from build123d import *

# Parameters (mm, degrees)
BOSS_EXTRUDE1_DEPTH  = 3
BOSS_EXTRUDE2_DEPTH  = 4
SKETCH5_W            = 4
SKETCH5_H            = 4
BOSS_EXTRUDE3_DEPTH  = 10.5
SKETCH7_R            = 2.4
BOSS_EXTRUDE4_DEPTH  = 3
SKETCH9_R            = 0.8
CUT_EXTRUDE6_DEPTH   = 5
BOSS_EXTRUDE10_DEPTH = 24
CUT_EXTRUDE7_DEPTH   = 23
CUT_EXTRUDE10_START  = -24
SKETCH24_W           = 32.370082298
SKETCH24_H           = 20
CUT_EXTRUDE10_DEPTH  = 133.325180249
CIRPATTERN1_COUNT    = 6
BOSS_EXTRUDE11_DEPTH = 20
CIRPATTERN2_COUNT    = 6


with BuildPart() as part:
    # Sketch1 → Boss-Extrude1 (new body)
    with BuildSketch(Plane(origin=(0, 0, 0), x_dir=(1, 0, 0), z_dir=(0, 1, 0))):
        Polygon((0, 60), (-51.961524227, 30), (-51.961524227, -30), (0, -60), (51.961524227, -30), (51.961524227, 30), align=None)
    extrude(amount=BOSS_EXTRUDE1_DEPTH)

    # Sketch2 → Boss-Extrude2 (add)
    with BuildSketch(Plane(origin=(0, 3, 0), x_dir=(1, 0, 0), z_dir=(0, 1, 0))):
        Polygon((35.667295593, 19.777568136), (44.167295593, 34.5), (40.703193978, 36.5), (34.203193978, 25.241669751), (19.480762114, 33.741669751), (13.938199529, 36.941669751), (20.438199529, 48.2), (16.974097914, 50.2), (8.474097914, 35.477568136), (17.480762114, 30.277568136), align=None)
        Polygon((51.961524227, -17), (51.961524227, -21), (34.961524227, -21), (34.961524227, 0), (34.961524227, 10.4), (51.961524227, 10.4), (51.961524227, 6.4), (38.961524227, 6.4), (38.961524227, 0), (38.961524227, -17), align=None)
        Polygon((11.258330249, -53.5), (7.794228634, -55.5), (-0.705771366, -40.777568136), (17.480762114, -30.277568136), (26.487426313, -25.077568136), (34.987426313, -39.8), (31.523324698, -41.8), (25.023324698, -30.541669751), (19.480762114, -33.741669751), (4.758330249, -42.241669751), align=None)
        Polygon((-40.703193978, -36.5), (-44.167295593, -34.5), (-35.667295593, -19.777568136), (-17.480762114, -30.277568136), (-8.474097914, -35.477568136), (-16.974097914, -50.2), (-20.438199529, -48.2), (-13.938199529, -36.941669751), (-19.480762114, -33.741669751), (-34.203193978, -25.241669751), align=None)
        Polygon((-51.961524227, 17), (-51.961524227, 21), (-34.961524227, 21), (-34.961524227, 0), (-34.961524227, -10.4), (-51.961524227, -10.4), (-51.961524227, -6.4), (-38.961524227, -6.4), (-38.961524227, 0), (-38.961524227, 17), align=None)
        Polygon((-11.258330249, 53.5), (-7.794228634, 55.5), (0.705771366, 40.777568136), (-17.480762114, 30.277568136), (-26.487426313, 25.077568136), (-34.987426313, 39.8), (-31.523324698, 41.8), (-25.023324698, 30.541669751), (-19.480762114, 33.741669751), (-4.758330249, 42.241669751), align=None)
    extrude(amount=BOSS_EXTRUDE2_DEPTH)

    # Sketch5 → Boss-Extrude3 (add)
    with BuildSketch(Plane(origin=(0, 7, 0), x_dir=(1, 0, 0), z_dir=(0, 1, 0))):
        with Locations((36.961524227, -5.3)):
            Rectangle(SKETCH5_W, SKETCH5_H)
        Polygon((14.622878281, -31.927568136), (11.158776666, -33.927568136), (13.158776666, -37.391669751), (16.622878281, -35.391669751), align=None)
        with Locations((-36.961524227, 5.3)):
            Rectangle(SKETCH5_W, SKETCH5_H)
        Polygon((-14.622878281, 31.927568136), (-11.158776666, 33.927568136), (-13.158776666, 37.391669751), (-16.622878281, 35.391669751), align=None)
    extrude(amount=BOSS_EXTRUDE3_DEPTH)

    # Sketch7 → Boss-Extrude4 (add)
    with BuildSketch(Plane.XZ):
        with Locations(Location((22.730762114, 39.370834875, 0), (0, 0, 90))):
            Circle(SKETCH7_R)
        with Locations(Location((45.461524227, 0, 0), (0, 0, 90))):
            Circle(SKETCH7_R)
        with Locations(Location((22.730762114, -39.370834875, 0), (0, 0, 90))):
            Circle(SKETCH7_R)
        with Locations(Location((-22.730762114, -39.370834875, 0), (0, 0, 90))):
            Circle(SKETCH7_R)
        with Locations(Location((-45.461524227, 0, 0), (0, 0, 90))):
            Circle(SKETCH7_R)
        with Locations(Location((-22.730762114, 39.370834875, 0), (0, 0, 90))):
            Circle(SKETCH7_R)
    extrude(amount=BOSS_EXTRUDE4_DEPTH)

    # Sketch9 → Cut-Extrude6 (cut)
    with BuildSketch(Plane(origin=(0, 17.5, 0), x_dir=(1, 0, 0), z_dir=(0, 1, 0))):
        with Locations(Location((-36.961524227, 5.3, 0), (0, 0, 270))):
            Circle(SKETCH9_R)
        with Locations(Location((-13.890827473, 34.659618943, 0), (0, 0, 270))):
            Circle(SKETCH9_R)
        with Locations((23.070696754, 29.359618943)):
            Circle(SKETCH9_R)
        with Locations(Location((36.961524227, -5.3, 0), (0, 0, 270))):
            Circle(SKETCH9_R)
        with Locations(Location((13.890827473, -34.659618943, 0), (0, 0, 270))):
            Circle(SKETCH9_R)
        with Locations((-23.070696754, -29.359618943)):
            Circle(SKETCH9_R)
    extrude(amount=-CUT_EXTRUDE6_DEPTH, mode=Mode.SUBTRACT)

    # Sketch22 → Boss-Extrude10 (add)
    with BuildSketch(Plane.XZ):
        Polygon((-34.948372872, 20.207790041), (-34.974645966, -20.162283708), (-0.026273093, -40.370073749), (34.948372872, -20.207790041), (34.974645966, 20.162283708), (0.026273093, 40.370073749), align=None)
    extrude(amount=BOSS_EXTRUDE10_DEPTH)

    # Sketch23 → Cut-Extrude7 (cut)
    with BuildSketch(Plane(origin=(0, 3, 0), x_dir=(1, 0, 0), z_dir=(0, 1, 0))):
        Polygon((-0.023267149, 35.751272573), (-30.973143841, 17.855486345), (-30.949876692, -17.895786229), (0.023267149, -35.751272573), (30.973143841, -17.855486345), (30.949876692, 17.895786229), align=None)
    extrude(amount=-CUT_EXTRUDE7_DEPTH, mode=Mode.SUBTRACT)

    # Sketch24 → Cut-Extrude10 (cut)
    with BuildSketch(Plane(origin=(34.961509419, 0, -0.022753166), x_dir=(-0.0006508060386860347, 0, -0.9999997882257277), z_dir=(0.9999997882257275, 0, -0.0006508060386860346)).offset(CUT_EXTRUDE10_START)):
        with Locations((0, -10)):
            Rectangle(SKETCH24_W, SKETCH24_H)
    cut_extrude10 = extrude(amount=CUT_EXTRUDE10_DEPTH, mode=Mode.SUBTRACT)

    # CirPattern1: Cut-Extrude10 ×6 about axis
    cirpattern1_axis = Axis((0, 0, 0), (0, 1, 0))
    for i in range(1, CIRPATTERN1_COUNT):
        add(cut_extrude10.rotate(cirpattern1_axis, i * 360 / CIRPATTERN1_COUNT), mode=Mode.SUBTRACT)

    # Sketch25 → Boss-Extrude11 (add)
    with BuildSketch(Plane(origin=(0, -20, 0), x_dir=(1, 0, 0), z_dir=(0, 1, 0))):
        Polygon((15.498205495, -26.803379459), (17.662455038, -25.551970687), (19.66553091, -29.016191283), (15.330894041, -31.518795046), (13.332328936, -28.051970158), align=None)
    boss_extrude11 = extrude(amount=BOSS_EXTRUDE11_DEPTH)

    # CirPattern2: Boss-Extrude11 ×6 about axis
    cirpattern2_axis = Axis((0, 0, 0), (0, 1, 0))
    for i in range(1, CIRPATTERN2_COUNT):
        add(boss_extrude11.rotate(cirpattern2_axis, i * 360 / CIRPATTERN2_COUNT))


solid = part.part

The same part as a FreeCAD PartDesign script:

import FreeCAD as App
import Part
import Sketcher
Q = App.Units.Quantity

doc = App.newDocument("Part")
body = doc.addObject("PartDesign::Body", "Body")

sketch1 = body.newObject("Sketcher::SketchObject", "Sketch")
sketch1.AttachmentSupport = (doc.getObject("XZ_Plane"), [""])
sketch1.MapMode = "FlatFace"
sketch1.addGeometry(Part.LineSegment(App.Vector(0, -60, 0), App.Vector(-52, -30, 0)), False)
sketch1.addGeometry(Part.LineSegment(App.Vector(-52, -30, 0), App.Vector(-52, 30, 0)), False)
sketch1.addGeometry(Part.LineSegment(App.Vector(-52, 30, 0), App.Vector(0, 60, 0)), False)
sketch1.addGeometry(Part.LineSegment(App.Vector(0, 60, 0), App.Vector(52, 30, 0)), False)
sketch1.addGeometry(Part.LineSegment(App.Vector(52, 30, 0), App.Vector(52, -30, 0)), False)
sketch1.addGeometry(Part.LineSegment(App.Vector(52, -30, 0), App.Vector(0, -60, 0)), False)
sketch1.addConstraint(Sketcher.Constraint("Coincident", 0, 2, 1, 1))
sketch1.addConstraint(Sketcher.Constraint("Coincident", 1, 2, 2, 1))
sketch1.addConstraint(Sketcher.Constraint("Coincident", 2, 2, 3, 1))
sketch1.addConstraint(Sketcher.Constraint("Coincident", 3, 2, 4, 1))
sketch1.addConstraint(Sketcher.Constraint("Coincident", 4, 2, 5, 1))
sketch1.addConstraint(Sketcher.Constraint("Coincident", 5, 2, 0, 1))
sketch1.addConstraint(Sketcher.Constraint("Vertical", 1))
sketch1.addConstraint(Sketcher.Constraint("Vertical", 4))
sketch1.addConstraint(Sketcher.Constraint("Symmetric", 0, 2, 3, 2, -1, 1))
sketch1.addConstraint(Sketcher.Constraint("Symmetric", 2, 2, 5, 2, -1, 1))
sketch1.addConstraint(Sketcher.Constraint("PointOnObject", 2, 2, -2))
sketch1.addConstraint(Sketcher.Constraint("Parallel", 2, 5))
sketch1.addConstraint(Sketcher.Constraint("Horizontal", 1, 2, 3, 2))
sketch1.addConstraint(Sketcher.Constraint("DistanceY", 1, 1, 1, 2, 60.0))
sketch1.addConstraint(Sketcher.Constraint("Angle", 0, Q("150 deg")))
sketch1.addConstraint(Sketcher.Constraint("Distance", 0, 60.0))
pad1 = body.newObject("PartDesign::Pad", "Pad")
pad1.Profile = sketch1
pad1.Length = 3
pad1.Reversed = True

sketch2 = body.newObject("Sketcher::SketchObject", "Sketch001")
sketch2.AttachmentSupport = (doc.getObject("XZ_Plane"), [""])
sketch2.MapMode = "FlatFace"
sketch2.AttachmentOffset = App.Placement(App.Vector(0, 0, -3), App.Rotation())
sketch2.addGeometry(Part.LineSegment(App.Vector(35.7, -19.8, 0), App.Vector(44.2, -34.5, 0)), False)
sketch2.addGeometry(Part.LineSegment(App.Vector(44.2, -34.5, 0), App.Vector(40.7, -36.5, 0)), False)
sketch2.addGeometry(Part.LineSegment(App.Vector(40.7, -36.5, 0), App.Vector(34.2, -25.2, 0)), False)
sketch2.addGeometry(Part.LineSegment(App.Vector(34.2, -25.2, 0), App.Vector(19.5, -33.7, 0)), False)
sketch2.addGeometry(Part.LineSegment(App.Vector(19.5, -33.7, 0), App.Vector(13.9, -36.9, 0)), False)
sketch2.addGeometry(Part.LineSegment(App.Vector(13.9, -36.9, 0), App.Vector(20.4, -48.2, 0)), False)
sketch2.addGeometry(Part.LineSegment(App.Vector(20.4, -48.2, 0), App.Vector(17, -50.2, 0)), False)
sketch2.addGeometry(Part.LineSegment(App.Vector(17, -50.2, 0), App.Vector(8.5, -35.5, 0)), False)
sketch2.addGeometry(Part.LineSegment(App.Vector(8.5, -35.5, 0), App.Vector(17.5, -30.3, 0)), False)
sketch2.addGeometry(Part.LineSegment(App.Vector(17.5, -30.3, 0), App.Vector(35.7, -19.8, 0)), False)
sketch2.addGeometry(Part.LineSegment(App.Vector(52, 21, 0), App.Vector(52, 17, 0)), False)
sketch2.addGeometry(Part.LineSegment(App.Vector(52, 17, 0), App.Vector(39, 17, 0)), False)
sketch2.addGeometry(Part.LineSegment(App.Vector(39, 17, 0), App.Vector(39, -6.4, 0)), False)
sketch2.addGeometry(Part.LineSegment(App.Vector(39, -6.4, 0), App.Vector(52, -6.4, 0)), False)
sketch2.addGeometry(Part.LineSegment(App.Vector(52, -6.4, 0), App.Vector(52, -10.4, 0)), False)
sketch2.addGeometry(Part.LineSegment(App.Vector(52, -10.4, 0), App.Vector(35, -10.4, 0)), False)
sketch2.addGeometry(Part.LineSegment(App.Vector(35, -10.4, 0), App.Vector(35, 21, 0)), False)
sketch2.addGeometry(Part.LineSegment(App.Vector(35, 21, 0), App.Vector(52, 21, 0)), False)
sketch2.addGeometry(Part.LineSegment(App.Vector(7.8, 55.5, 0), App.Vector(11.3, 53.5, 0)), False)
sketch2.addGeometry(Part.LineSegment(App.Vector(11.3, 53.5, 0), App.Vector(4.8, 42.2, 0)), False)
sketch2.addGeometry(Part.LineSegment(App.Vector(4.8, 42.2, 0), App.Vector(19.5, 33.7, 0)), False)
sketch2.addGeometry(Part.LineSegment(App.Vector(19.5, 33.7, 0), App.Vector(25, 30.5, 0)), False)
sketch2.addGeometry(Part.LineSegment(App.Vector(25, 30.5, 0), App.Vector(31.5, 41.8, 0)), False)
sketch2.addGeometry(Part.LineSegment(App.Vector(31.5, 41.8, 0), App.Vector(35, 39.8, 0)), False)
sketch2.addGeometry(Part.LineSegment(App.Vector(35, 39.8, 0), App.Vector(26.5, 25.1, 0)), False)
sketch2.addGeometry(Part.LineSegment(App.Vector(26.5, 25.1, 0), App.Vector(17.5, 30.3, 0)), False)
sketch2.addGeometry(Part.LineSegment(App.Vector(17.5, 30.3, 0), App.Vector(-0.7, 40.8, 0)), False)
sketch2.addGeometry(Part.LineSegment(App.Vector(-0.7, 40.8, 0), App.Vector(7.8, 55.5, 0)), False)
sketch2.addGeometry(Part.LineSegment(App.Vector(-44.2, 34.5, 0), App.Vector(-40.7, 36.5, 0)), False)
sketch2.addGeometry(Part.LineSegment(App.Vector(-40.7, 36.5, 0), App.Vector(-34.2, 25.2, 0)), False)
sketch2.addGeometry(Part.LineSegment(App.Vector(-34.2, 25.2, 0), App.Vector(-19.5, 33.7, 0)), False)
sketch2.addGeometry(Part.LineSegment(App.Vector(-19.5, 33.7, 0), App.Vector(-13.9, 36.9, 0)), False)
sketch2.addGeometry(Part.LineSegment(App.Vector(-13.9, 36.9, 0), App.Vector(-20.4, 48.2, 0)), False)
sketch2.addGeometry(Part.LineSegment(App.Vector(-20.4, 48.2, 0), App.Vector(-17, 50.2, 0)), False)
sketch2.addGeometry(Part.LineSegment(App.Vector(-17, 50.2, 0), App.Vector(-8.5, 35.5, 0)), False)
sketch2.addGeometry(Part.LineSegment(App.Vector(-8.5, 35.5, 0), App.Vector(-17.5, 30.3, 0)), False)
sketch2.addGeometry(Part.LineSegment(App.Vector(-17.5, 30.3, 0), App.Vector(-35.7, 19.8, 0)), False)
sketch2.addGeometry(Part.LineSegment(App.Vector(-35.7, 19.8, 0), App.Vector(-44.2, 34.5, 0)), False)
sketch2.addGeometry(Part.LineSegment(App.Vector(-52, -21, 0), App.Vector(-52, -17, 0)), False)
sketch2.addGeometry(Part.LineSegment(App.Vector(-52, -17, 0), App.Vector(-39, -17, 0)), False)
sketch2.addGeometry(Part.LineSegment(App.Vector(-39, -17, 0), App.Vector(-39, 6.4, 0)), False)
sketch2.addGeometry(Part.LineSegment(App.Vector(-39, 6.4, 0), App.Vector(-52, 6.4, 0)), False)
sketch2.addGeometry(Part.LineSegment(App.Vector(-52, 6.4, 0), App.Vector(-52, 10.4, 0)), False)
sketch2.addGeometry(Part.LineSegment(App.Vector(-52, 10.4, 0), App.Vector(-35, 10.4, 0)), False)
sketch2.addGeometry(Part.LineSegment(App.Vector(-35, 10.4, 0), App.Vector(-35, -21, 0)), False)
sketch2.addGeometry(Part.LineSegment(App.Vector(-35, -21, 0), App.Vector(-52, -21, 0)), False)
sketch2.addGeometry(Part.LineSegment(App.Vector(-7.8, -55.5, 0), App.Vector(-11.3, -53.5, 0)), False)
sketch2.addGeometry(Part.LineSegment(App.Vector(-11.3, -53.5, 0), App.Vector(-4.8, -42.2, 0)), False)
sketch2.addGeometry(Part.LineSegment(App.Vector(-4.8, -42.2, 0), App.Vector(-19.5, -33.7, 0)), False)
sketch2.addGeometry(Part.LineSegment(App.Vector(-19.5, -33.7, 0), App.Vector(-25, -30.5, 0)), False)
sketch2.addGeometry(Part.LineSegment(App.Vector(-25, -30.5, 0), App.Vector(-31.5, -41.8, 0)), False)
sketch2.addGeometry(Part.LineSegment(App.Vector(-31.5, -41.8, 0), App.Vector(-35, -39.8, 0)), False)
sketch2.addGeometry(Part.LineSegment(App.Vector(-35, -39.8, 0), App.Vector(-26.5, -25.1, 0)), False)
sketch2.addGeometry(Part.LineSegment(App.Vector(-26.5, -25.1, 0), App.Vector(-17.5, -30.3, 0)), False)
sketch2.addGeometry(Part.LineSegment(App.Vector(-17.5, -30.3, 0), App.Vector(0.7, -40.8, 0)), False)
sketch2.addGeometry(Part.LineSegment(App.Vector(0.7, -40.8, 0), App.Vector(-7.8, -55.5, 0)), False)
sketch2.addConstraint(Sketcher.Constraint("Coincident", 0, 2, 1, 1))
sketch2.addConstraint(Sketcher.Constraint("Coincident", 1, 2, 2, 1))
sketch2.addConstraint(Sketcher.Constraint("Coincident", 2, 2, 3, 1))
sketch2.addConstraint(Sketcher.Constraint("Coincident", 3, 2, 4, 1))
sketch2.addConstraint(Sketcher.Constraint("Coincident", 4, 2, 5, 1))
sketch2.addConstraint(Sketcher.Constraint("Coincident", 5, 2, 6, 1))
sketch2.addConstraint(Sketcher.Constraint("Coincident", 6, 2, 7, 1))
sketch2.addConstraint(Sketcher.Constraint("Coincident", 7, 2, 8, 1))
sketch2.addConstraint(Sketcher.Constraint("Coincident", 8, 2, 9, 1))
sketch2.addConstraint(Sketcher.Constraint("Coincident", 9, 2, 0, 1))
sketch2.addConstraint(Sketcher.Constraint("Coincident", 10, 2, 11, 1))
sketch2.addConstraint(Sketcher.Constraint("Coincident", 11, 2, 12, 1))
sketch2.addConstraint(Sketcher.Constraint("Coincident", 12, 2, 13, 1))
sketch2.addConstraint(Sketcher.Constraint("Coincident", 13, 2, 14, 1))
sketch2.addConstraint(Sketcher.Constraint("Coincident", 14, 2, 15, 1))
sketch2.addConstraint(Sketcher.Constraint("Coincident", 15, 2, 16, 1))
sketch2.addConstraint(Sketcher.Constraint("Coincident", 16, 2, 17, 1))
sketch2.addConstraint(Sketcher.Constraint("Coincident", 17, 2, 10, 1))
sketch2.addConstraint(Sketcher.Constraint("Coincident", 18, 2, 19, 1))
sketch2.addConstraint(Sketcher.Constraint("Coincident", 19, 2, 20, 1))
sketch2.addConstraint(Sketcher.Constraint("Coincident", 20, 2, 21, 1))
sketch2.addConstraint(Sketcher.Constraint("Coincident", 21, 2, 22, 1))
sketch2.addConstraint(Sketcher.Constraint("Coincident", 22, 2, 23, 1))
sketch2.addConstraint(Sketcher.Constraint("Coincident", 23, 2, 24, 1))
sketch2.addConstraint(Sketcher.Constraint("Coincident", 24, 2, 25, 1))
sketch2.addConstraint(Sketcher.Constraint("Coincident", 25, 2, 26, 1))
sketch2.addConstraint(Sketcher.Constraint("Coincident", 26, 2, 27, 1))
sketch2.addConstraint(Sketcher.Constraint("Coincident", 27, 2, 18, 1))
sketch2.addConstraint(Sketcher.Constraint("Coincident", 28, 2, 29, 1))
sketch2.addConstraint(Sketcher.Constraint("Coincident", 29, 2, 30, 1))
sketch2.addConstraint(Sketcher.Constraint("Coincident", 30, 2, 31, 1))
sketch2.addConstraint(Sketcher.Constraint("Coincident", 31, 2, 32, 1))
sketch2.addConstraint(Sketcher.Constraint("Coincident", 32, 2, 33, 1))
sketch2.addConstraint(Sketcher.Constraint("Coincident", 33, 2, 34, 1))
sketch2.addConstraint(Sketcher.Constraint("Coincident", 34, 2, 35, 1))
sketch2.addConstraint(Sketcher.Constraint("Coincident", 35, 2, 36, 1))
sketch2.addConstraint(Sketcher.Constraint("Coincident", 36, 2, 37, 1))
sketch2.addConstraint(Sketcher.Constraint("Coincident", 37, 2, 28, 1))
sketch2.addConstraint(Sketcher.Constraint("Coincident", 38, 2, 39, 1))
sketch2.addConstraint(Sketcher.Constraint("Coincident", 39, 2, 40, 1))
sketch2.addConstraint(Sketcher.Constraint("Coincident", 40, 2, 41, 1))
sketch2.addConstraint(Sketcher.Constraint("Coincident", 41, 2, 42, 1))
sketch2.addConstraint(Sketcher.Constraint("Coincident", 42, 2, 43, 1))
sketch2.addConstraint(Sketcher.Constraint("Coincident", 43, 2, 44, 1))
sketch2.addConstraint(Sketcher.Constraint("Coincident", 44, 2, 45, 1))
sketch2.addConstraint(Sketcher.Constraint("Coincident", 45, 2, 38, 1))
sketch2.addConstraint(Sketcher.Constraint("Coincident", 46, 2, 47, 1))
sketch2.addConstraint(Sketcher.Constraint("Coincident", 47, 2, 48, 1))
sketch2.addConstraint(Sketcher.Constraint("Coincident", 48, 2, 49, 1))
sketch2.addConstraint(Sketcher.Constraint("Coincident", 49, 2, 50, 1))
sketch2.addConstraint(Sketcher.Constraint("Coincident", 50, 2, 51, 1))
sketch2.addConstraint(Sketcher.Constraint("Coincident", 51, 2, 52, 1))
sketch2.addConstraint(Sketcher.Constraint("Coincident", 52, 2, 53, 1))
sketch2.addConstraint(Sketcher.Constraint("Coincident", 53, 2, 54, 1))
sketch2.addConstraint(Sketcher.Constraint("Coincident", 54, 2, 55, 1))
sketch2.addConstraint(Sketcher.Constraint("Coincident", 55, 2, 46, 1))
sketch2.addConstraint(Sketcher.Constraint("Vertical", 10))
sketch2.addConstraint(Sketcher.Constraint("Horizontal", 11))
sketch2.addConstraint(Sketcher.Constraint("Vertical", 12))
sketch2.addConstraint(Sketcher.Constraint("Horizontal", 13))
sketch2.addConstraint(Sketcher.Constraint("Vertical", 14))
sketch2.addConstraint(Sketcher.Constraint("Horizontal", 15))
sketch2.addConstraint(Sketcher.Constraint("Vertical", 16))
sketch2.addConstraint(Sketcher.Constraint("Horizontal", 17))
sketch2.addConstraint(Sketcher.Constraint("Vertical", 38))
sketch2.addConstraint(Sketcher.Constraint("Horizontal", 39))
sketch2.addConstraint(Sketcher.Constraint("Vertical", 40))
sketch2.addConstraint(Sketcher.Constraint("Horizontal", 41))
sketch2.addConstraint(Sketcher.Constraint("Vertical", 42))
sketch2.addConstraint(Sketcher.Constraint("Horizontal", 43))
sketch2.addConstraint(Sketcher.Constraint("Vertical", 44))
sketch2.addConstraint(Sketcher.Constraint("Horizontal", 45))
sketch2.addConstraint(Sketcher.Constraint("Symmetric", 1, 2, 28, 2, -1, 1))
sketch2.addConstraint(Sketcher.Constraint("Symmetric", 2, 2, 29, 2, -1, 1))
sketch2.addConstraint(Sketcher.Constraint("Symmetric", 3, 2, 30, 2, -1, 1))
sketch2.addConstraint(Sketcher.Constraint("Symmetric", 4, 2, 31, 2, -1, 1))
sketch2.addConstraint(Sketcher.Constraint("Symmetric", 5, 2, 32, 2, -1, 1))
sketch2.addConstraint(Sketcher.Constraint("Symmetric", 6, 2, 33, 2, -1, 1))
sketch2.addConstraint(Sketcher.Constraint("Symmetric", 7, 2, 34, 2, -1, 1))
sketch2.addConstraint(Sketcher.Constraint("Symmetric", 8, 2, 35, 2, -1, 1))
sketch2.addConstraint(Sketcher.Constraint("Symmetric", 9, 2, 36, 2, -1, 1))
sketch2.addConstraint(Sketcher.Constraint("Symmetric", 0, 2, 37, 2, -1, 1))
sketch2.addConstraint(Sketcher.Constraint("Symmetric", 10, 2, 38, 2, -1, 1))
sketch2.addConstraint(Sketcher.Constraint("Symmetric", 12, 2, 40, 2, -1, 1))
sketch2.addConstraint(Sketcher.Constraint("Symmetric", 14, 2, 42, 2, -1, 1))
sketch2.addConstraint(Sketcher.Constraint("Symmetric", 16, 2, 44, 2, -1, 1))
sketch2.addConstraint(Sketcher.Constraint("Symmetric", 18, 2, 46, 2, -1, 1))
sketch2.addConstraint(Sketcher.Constraint("Symmetric", 19, 2, 47, 2, -1, 1))
sketch2.addConstraint(Sketcher.Constraint("Symmetric", 20, 2, 48, 2, -1, 1))
sketch2.addConstraint(Sketcher.Constraint("Symmetric", 21, 2, 49, 2, -1, 1))
sketch2.addConstraint(Sketcher.Constraint("Symmetric", 22, 2, 50, 2, -1, 1))
sketch2.addConstraint(Sketcher.Constraint("Symmetric", 23, 2, 51, 2, -1, 1))
sketch2.addConstraint(Sketcher.Constraint("Symmetric", 24, 2, 52, 2, -1, 1))
sketch2.addConstraint(Sketcher.Constraint("Symmetric", 25, 2, 53, 2, -1, 1))
sketch2.addConstraint(Sketcher.Constraint("Symmetric", 26, 2, 54, 2, -1, 1))
sketch2.addConstraint(Sketcher.Constraint("Symmetric", 27, 2, 55, 2, -1, 1))
sketch2.addConstraint(Sketcher.Constraint("Symmetric", 20, 2, 30, 2, -2))
sketch2.addConstraint(Sketcher.Constraint("Symmetric", 25, 2, 35, 2, -2))
sketch2.addConstraint(Sketcher.Constraint("Perpendicular", 0, 1))
sketch2.addConstraint(Sketcher.Constraint("Perpendicular", 1, 2))
sketch2.addConstraint(Sketcher.Constraint("Perpendicular", 2, 3))
sketch2.addConstraint(Sketcher.Constraint("Parallel", 3, 4))
sketch2.addConstraint(Sketcher.Constraint("Perpendicular", 4, 5))
sketch2.addConstraint(Sketcher.Constraint("Perpendicular", 5, 6))
sketch2.addConstraint(Sketcher.Constraint("Perpendicular", 6, 7))
sketch2.addConstraint(Sketcher.Constraint("Perpendicular", 7, 8))
sketch2.addConstraint(Sketcher.Constraint("Parallel", 8, 9))
sketch2.addConstraint(Sketcher.Constraint("Perpendicular", 18, 19))
sketch2.addConstraint(Sketcher.Constraint("Perpendicular", 19, 20))
sketch2.addConstraint(Sketcher.Constraint("Parallel", 20, 21))
sketch2.addConstraint(Sketcher.Constraint("Perpendicular", 21, 22))
sketch2.addConstraint(Sketcher.Constraint("Perpendicular", 22, 23))
sketch2.addConstraint(Sketcher.Constraint("Perpendicular", 23, 24))
sketch2.addConstraint(Sketcher.Constraint("Perpendicular", 24, 25))
sketch2.addConstraint(Sketcher.Constraint("Parallel", 25, 26))
sketch2.addConstraint(Sketcher.Constraint("Perpendicular", 26, 27))
sketch2.addConstraint(Sketcher.Constraint("Vertical", 10, 2, 13, 2))
sketch2.addConstraint(Sketcher.Constraint("Equal", 10, 14))
sketch2.addConstraint(Sketcher.Constraint("Equal", 0, 3))
sketch2.addConstraint(Sketcher.Constraint("Equal", 2, 5))
sketch2.addConstraint(Sketcher.Constraint("Equal", 1, 6))
sketch2.addConstraint(Sketcher.Constraint("Equal", 6, 18))
sketch2.addConstraint(Sketcher.Constraint("Equal", 5, 19))
sketch2.addConstraint(Sketcher.Constraint("Equal", 7, 20))
sketch2.addConstraint(Sketcher.Constraint("Equal", 4, 21))
sketch2.addConstraint(Sketcher.Constraint("Equal", 19, 22))
sketch2.addConstraint(Sketcher.Constraint("Equal", 18, 23))
sketch2.addConstraint(Sketcher.Constraint("Equal", 8, 25))
sketch2.addConstraint(Sketcher.Constraint("DistanceX", 11, 2, 11, 1, 13.0))
sketch2.addConstraint(Sketcher.Constraint("DistanceX", 15, 2, 15, 1, 17.0))
sketch2.addConstraint(Sketcher.Constraint("DistanceY", 10, 2, 10, 1, 4.0))
sketch2.addConstraint(Sketcher.Constraint("Angle", 0, Q("-60 deg")))
sketch2.addConstraint(Sketcher.Constraint("Angle", 18, Q("-30 deg")))
sketch2.addConstraint(Sketcher.Constraint("Distance", 0, 17.0))
sketch2.addConstraint(Sketcher.Constraint("Distance", 1, 4.0))
sketch2.addConstraint(Sketcher.Constraint("Distance", 2, 13.0))
sketch2.addConstraint(Sketcher.Constraint("DistanceY", 12, 2, 12, 1, 23.4))
sketch2.addConstraint(Sketcher.Constraint("DistanceY", -1, 1, 10, 2, 17.0))
sketch2.addConstraint(Sketcher.Constraint("Distance", 4, 6.4))
sketch2.addConstraint(Sketcher.Constraint("DistanceY", 0, 2, -1, 1, 34.5))
sketch2.addConstraint(Sketcher.Constraint("DistanceX", -1, 1, 4, 2, 13.9382))
sketch2.addConstraint(Sketcher.Constraint("DistanceX", 21, 2, 16, 2, 9.9382))
pad2 = body.newObject("PartDesign::Pad", "Pad001")
pad2.Profile = sketch2
pad2.Length = 4
pad2.Reversed = True

sketch3 = body.newObject("Sketcher::SketchObject", "Sketch002")
sketch3.AttachmentSupport = (doc.getObject("XZ_Plane"), [""])
sketch3.MapMode = "FlatFace"
sketch3.AttachmentOffset = App.Placement(App.Vector(0, 0, -7), App.Rotation())
sketch3.addGeometry(Part.LineSegment(App.Vector(35, 3.3, 0), App.Vector(35, 7.3, 0)), False)
sketch3.addGeometry(Part.LineSegment(App.Vector(35, 7.3, 0), App.Vector(39, 7.3, 0)), False)
sketch3.addGeometry(Part.LineSegment(App.Vector(39, 7.3, 0), App.Vector(39, 3.3, 0)), False)
sketch3.addGeometry(Part.LineSegment(App.Vector(39, 3.3, 0), App.Vector(35, 3.3, 0)), False)
sketch3.addGeometry(Part.LineSegment(App.Vector(14.6, 31.9, 0), App.Vector(11.2, 33.9, 0)), False)
sketch3.addGeometry(Part.LineSegment(App.Vector(11.2, 33.9, 0), App.Vector(13.2, 37.4, 0)), False)
sketch3.addGeometry(Part.LineSegment(App.Vector(13.2, 37.4, 0), App.Vector(16.6, 35.4, 0)), False)
sketch3.addGeometry(Part.LineSegment(App.Vector(16.6, 35.4, 0), App.Vector(14.6, 31.9, 0)), False)
sketch3.addGeometry(Part.LineSegment(App.Vector(-39, -7.3, 0), App.Vector(-39, -3.3, 0)), False)
sketch3.addGeometry(Part.LineSegment(App.Vector(-39, -3.3, 0), App.Vector(-35, -3.3, 0)), False)
sketch3.addGeometry(Part.LineSegment(App.Vector(-35, -3.3, 0), App.Vector(-35, -7.3, 0)), False)
sketch3.addGeometry(Part.LineSegment(App.Vector(-35, -7.3, 0), App.Vector(-39, -7.3, 0)), False)
sketch3.addGeometry(Part.LineSegment(App.Vector(-14.6, -31.9, 0), App.Vector(-11.2, -33.9, 0)), False)
sketch3.addGeometry(Part.LineSegment(App.Vector(-11.2, -33.9, 0), App.Vector(-13.2, -37.4, 0)), False)
sketch3.addGeometry(Part.LineSegment(App.Vector(-13.2, -37.4, 0), App.Vector(-16.6, -35.4, 0)), False)
sketch3.addGeometry(Part.LineSegment(App.Vector(-16.6, -35.4, 0), App.Vector(-14.6, -31.9, 0)), False)
sketch3.addConstraint(Sketcher.Constraint("Coincident", 0, 2, 1, 1))
sketch3.addConstraint(Sketcher.Constraint("Coincident", 1, 2, 2, 1))
sketch3.addConstraint(Sketcher.Constraint("Coincident", 2, 2, 3, 1))
sketch3.addConstraint(Sketcher.Constraint("Coincident", 3, 2, 0, 1))
sketch3.addConstraint(Sketcher.Constraint("Coincident", 4, 2, 5, 1))
sketch3.addConstraint(Sketcher.Constraint("Coincident", 5, 2, 6, 1))
sketch3.addConstraint(Sketcher.Constraint("Coincident", 6, 2, 7, 1))
sketch3.addConstraint(Sketcher.Constraint("Coincident", 7, 2, 4, 1))
sketch3.addConstraint(Sketcher.Constraint("Coincident", 8, 2, 9, 1))
sketch3.addConstraint(Sketcher.Constraint("Coincident", 9, 2, 10, 1))
sketch3.addConstraint(Sketcher.Constraint("Coincident", 10, 2, 11, 1))
sketch3.addConstraint(Sketcher.Constraint("Coincident", 11, 2, 8, 1))
sketch3.addConstraint(Sketcher.Constraint("Coincident", 12, 2, 13, 1))
sketch3.addConstraint(Sketcher.Constraint("Coincident", 13, 2, 14, 1))
sketch3.addConstraint(Sketcher.Constraint("Coincident", 14, 2, 15, 1))
sketch3.addConstraint(Sketcher.Constraint("Coincident", 15, 2, 12, 1))
sketch3.addConstraint(Sketcher.Constraint("Vertical", 0))
sketch3.addConstraint(Sketcher.Constraint("Horizontal", 1))
sketch3.addConstraint(Sketcher.Constraint("Vertical", 2))
sketch3.addConstraint(Sketcher.Constraint("Horizontal", 3))
sketch3.addConstraint(Sketcher.Constraint("Vertical", 8))
sketch3.addConstraint(Sketcher.Constraint("Horizontal", 9))
sketch3.addConstraint(Sketcher.Constraint("Vertical", 10))
sketch3.addConstraint(Sketcher.Constraint("Horizontal", 11))
sketch3.addConstraint(Sketcher.Constraint("Symmetric", 2, 2, 8, 2, -1, 1))
sketch3.addConstraint(Sketcher.Constraint("Symmetric", 0, 2, 10, 2, -1, 1))
sketch3.addConstraint(Sketcher.Constraint("Symmetric", 4, 2, 12, 2, -1, 1))
sketch3.addConstraint(Sketcher.Constraint("Symmetric", 5, 2, 13, 2, -1, 1))
sketch3.addConstraint(Sketcher.Constraint("Symmetric", 6, 2, 14, 2, -1, 1))
sketch3.addConstraint(Sketcher.Constraint("Symmetric", 7, 2, 15, 2, -1, 1))
sketch3.addConstraint(Sketcher.Constraint("Perpendicular", 4, 5))
sketch3.addConstraint(Sketcher.Constraint("Perpendicular", 5, 6))
sketch3.addConstraint(Sketcher.Constraint("Perpendicular", 6, 7))
sketch3.addConstraint(Sketcher.Constraint("Equal", 11, 0))
sketch3.addConstraint(Sketcher.Constraint("Equal", 4, 5))
sketch3.addConstraint(Sketcher.Constraint("DistanceX", 1, 1, 1, 2, 4.0))
sketch3.addConstraint(Sketcher.Constraint("Angle", 4, Q("150 deg")))
sketch3.addConstraint(Sketcher.Constraint("Distance", 4, 4.0))
sketch3.addConstraint(Sketcher.Constraint("DistanceY", -1, 1, 0, 2, 7.3))
sketch3.addConstraint(Sketcher.Constraint("DistanceX", 8, 2, 4, 2, 50.120301))
sketch3.addConstraint(Sketcher.Constraint("DistanceY", -1, 1, 4, 2, 33.927568))
sketch3.addConstraint(Sketcher.Constraint("DistanceX", -1, 1, 6, 2, 16.622878))
pad3 = body.newObject("PartDesign::Pad", "Pad002")
pad3.Profile = sketch3
pad3.Length = 10.5
pad3.Reversed = True

sketch4 = body.newObject("Sketcher::SketchObject", "Sketch003")
sketch4.AttachmentSupport = (doc.getObject("XZ_Plane"), [""])
sketch4.MapMode = "FlatFace"
sketch4.addGeometry(Part.Circle(App.Vector(22.7, 39.4, 0), App.Vector(0, 0, 1), 2.4), False)
sketch4.addGeometry(Part.Circle(App.Vector(45.5, 0, 0), App.Vector(0, 0, 1), 2.4), False)
sketch4.addGeometry(Part.Circle(App.Vector(22.7, -39.4, 0), App.Vector(0, 0, 1), 2.4), False)
sketch4.addGeometry(Part.Circle(App.Vector(-22.7, -39.4, 0), App.Vector(0, 0, 1), 2.4), False)
sketch4.addGeometry(Part.Circle(App.Vector(-45.5, 0, 0), App.Vector(0, 0, 1), 2.4), False)
sketch4.addGeometry(Part.Circle(App.Vector(-22.7, 39.4, 0), App.Vector(0, 0, 1), 2.4), False)
sketch4.addConstraint(Sketcher.Constraint("Equal", 0, 1))
sketch4.addConstraint(Sketcher.Constraint("Equal", 1, 2))
sketch4.addConstraint(Sketcher.Constraint("Equal", 2, 3))
sketch4.addConstraint(Sketcher.Constraint("Equal", 3, 4))
sketch4.addConstraint(Sketcher.Constraint("Equal", 4, 5))
sketch4.addConstraint(Sketcher.Constraint("Symmetric", 0, 3, 3, 3, -1, 1))
sketch4.addConstraint(Sketcher.Constraint("Symmetric", 1, 3, 4, 3, -1, 1))
sketch4.addConstraint(Sketcher.Constraint("Symmetric", 2, 3, 5, 3, -1, 1))
sketch4.addConstraint(Sketcher.Constraint("Symmetric", 2, 3, 3, 3, -2))
sketch4.addConstraint(Sketcher.Constraint("PointOnObject", 1, 3, -1))
sketch4.addConstraint(Sketcher.Constraint("Diameter", 0, 4.8))
sketch4.addConstraint(Sketcher.Constraint("DistanceY", 2, 3, 0, 3, 78.74167))
sketch4.addConstraint(Sketcher.Constraint("DistanceX", 4, 3, 1, 3, 90.923048))
sketch4.addConstraint(Sketcher.Constraint("DistanceX", -1, 1, 0, 3, 22.730762))
pad4 = body.newObject("PartDesign::Pad", "Pad003")
pad4.Profile = sketch4
pad4.Length = 3

sketch5 = body.newObject("Sketcher::SketchObject", "Sketch004")
sketch5.AttachmentSupport = (doc.getObject("XZ_Plane"), [""])
sketch5.MapMode = "FlatFace"
sketch5.AttachmentOffset = App.Placement(App.Vector(0, 0, -17.5), App.Rotation())
sketch5.addGeometry(Part.Circle(App.Vector(-37, -5.3, 0), App.Vector(0, 0, 1), 0.8), False)
sketch5.addGeometry(Part.Circle(App.Vector(-13.9, -34.7, 0), App.Vector(0, 0, 1), 0.8), False)
sketch5.addGeometry(Part.Circle(App.Vector(23.1, -29.4, 0), App.Vector(0, 0, 1), 0.8), False)
sketch5.addGeometry(Part.Circle(App.Vector(37, 5.3, 0), App.Vector(0, 0, 1), 0.8), False)
sketch5.addGeometry(Part.Circle(App.Vector(13.9, 34.7, 0), App.Vector(0, 0, 1), 0.8), False)
sketch5.addGeometry(Part.Circle(App.Vector(-23.1, 29.4, 0), App.Vector(0, 0, 1), 0.8), False)
sketch5.addConstraint(Sketcher.Constraint("Equal", 0, 1))
sketch5.addConstraint(Sketcher.Constraint("Equal", 1, 2))
sketch5.addConstraint(Sketcher.Constraint("Equal", 2, 3))
sketch5.addConstraint(Sketcher.Constraint("Equal", 3, 4))
sketch5.addConstraint(Sketcher.Constraint("Equal", 4, 5))
sketch5.addConstraint(Sketcher.Constraint("Symmetric", 0, 3, 3, 3, -1, 1))
sketch5.addConstraint(Sketcher.Constraint("Symmetric", 1, 3, 4, 3, -1, 1))
sketch5.addConstraint(Sketcher.Constraint("Symmetric", 2, 3, 5, 3, -1, 1))
sketch5.addConstraint(Sketcher.Constraint("Diameter", 0, 1.6))
sketch5.addConstraint(Sketcher.Constraint("DistanceY", 0, 3, -1, 1, 5.3))
sketch5.addConstraint(Sketcher.Constraint("DistanceY", 1, 3, 2, 3, 5.3))
sketch5.addConstraint(Sketcher.Constraint("DistanceY", 1, 3, -1, 1, 34.659619))
sketch5.addConstraint(Sketcher.Constraint("DistanceX", 0, 3, 2, 3, 60.032221))
sketch5.addConstraint(Sketcher.Constraint("DistanceX", 1, 3, 3, 3, 50.852352))
sketch5.addConstraint(Sketcher.Constraint("DistanceX", 0, 3, 3, 3, 73.923048))
pocket1 = body.newObject("PartDesign::Pocket", "Pocket")
pocket1.Profile = sketch5
pocket1.Length = 5
pocket1.Reversed = True

sketch6 = body.newObject("Sketcher::SketchObject", "Sketch005")
sketch6.AttachmentSupport = (doc.getObject("XZ_Plane"), [""])
sketch6.MapMode = "FlatFace"
sketch6.addGeometry(Part.LineSegment(App.Vector(-35, 20, 0), App.Vector(-35, -20, 0)), False)
sketch6.addGeometry(Part.LineSegment(App.Vector(-35, -20, 0), App.Vector(0, -40, 0)), False)
sketch6.addGeometry(Part.LineSegment(App.Vector(0, -40, 0), App.Vector(35, -20, 0)), False)
sketch6.addGeometry(Part.LineSegment(App.Vector(35, -20, 0), App.Vector(35, 20, 0)), False)
sketch6.addGeometry(Part.LineSegment(App.Vector(35, 20, 0), App.Vector(0, 40, 0)), False)
sketch6.addGeometry(Part.LineSegment(App.Vector(0, 40, 0), App.Vector(-35, 20, 0)), False)
sketch6.addConstraint(Sketcher.Constraint("Coincident", 0, 2, 1, 1))
sketch6.addConstraint(Sketcher.Constraint("Coincident", 1, 2, 2, 1))
sketch6.addConstraint(Sketcher.Constraint("Coincident", 2, 2, 3, 1))
sketch6.addConstraint(Sketcher.Constraint("Coincident", 3, 2, 4, 1))
sketch6.addConstraint(Sketcher.Constraint("Coincident", 4, 2, 5, 1))
sketch6.addConstraint(Sketcher.Constraint("Coincident", 5, 2, 0, 1))
sketch6.addConstraint(Sketcher.Constraint("Symmetric", 0, 2, 3, 2, -1, 1))
sketch6.addConstraint(Sketcher.Constraint("Symmetric", 1, 2, 4, 2, -1, 1))
sketch6.addConstraint(Sketcher.Constraint("Symmetric", 2, 2, 5, 2, -1, 1))
sketch6.addConstraint(Sketcher.Constraint("Equal", 0, 1))
sketch6.addConstraint(Sketcher.Constraint("Equal", 1, 2))
sketch6.addConstraint(Sketcher.Constraint("DistanceX", 4, 2, 2, 2, 34.9221))
sketch6.addConstraint(Sketcher.Constraint("DistanceY", 2, 2, -1, 1, 20.20779))
sketch6.addConstraint(Sketcher.Constraint("DistanceY", 1, 2, 0, 2, 20.20779))
sketch6.addConstraint(Sketcher.Constraint("DistanceX", 0, 2, 2, 2, 69.923019))
pad5 = body.newObject("PartDesign::Pad", "Pad004")
pad5.Profile = sketch6
pad5.Length = 24

sketch7 = body.newObject("Sketcher::SketchObject", "Sketch006")
sketch7.AttachmentSupport = (doc.getObject("XZ_Plane"), [""])
sketch7.MapMode = "FlatFace"
sketch7.AttachmentOffset = App.Placement(App.Vector(0, 0, -3), App.Rotation())
sketch7.addGeometry(Part.LineSegment(App.Vector(0, -36, 0), App.Vector(-31, -18, 0)), False)
sketch7.addGeometry(Part.LineSegment(App.Vector(-31, -18, 0), App.Vector(-31, 18, 0)), False)
sketch7.addGeometry(Part.LineSegment(App.Vector(-31, 18, 0), App.Vector(0, 36, 0)), False)
sketch7.addGeometry(Part.LineSegment(App.Vector(0, 36, 0), App.Vector(31, 18, 0)), False)
sketch7.addGeometry(Part.LineSegment(App.Vector(31, 18, 0), App.Vector(31, -18, 0)), False)
sketch7.addGeometry(Part.LineSegment(App.Vector(31, -18, 0), App.Vector(0, -36, 0)), False)
sketch7.addConstraint(Sketcher.Constraint("Coincident", 0, 2, 1, 1))
sketch7.addConstraint(Sketcher.Constraint("Coincident", 1, 2, 2, 1))
sketch7.addConstraint(Sketcher.Constraint("Coincident", 2, 2, 3, 1))
sketch7.addConstraint(Sketcher.Constraint("Coincident", 3, 2, 4, 1))
sketch7.addConstraint(Sketcher.Constraint("Coincident", 4, 2, 5, 1))
sketch7.addConstraint(Sketcher.Constraint("Coincident", 5, 2, 0, 1))
sketch7.addConstraint(Sketcher.Constraint("Symmetric", 0, 2, 3, 2, -1, 1))
sketch7.addConstraint(Sketcher.Constraint("Symmetric", 1, 2, 4, 2, -1, 1))
sketch7.addConstraint(Sketcher.Constraint("Symmetric", 2, 2, 5, 2, -1, 1))
sketch7.addConstraint(Sketcher.Constraint("Equal", 0, 1))
sketch7.addConstraint(Sketcher.Constraint("Equal", 1, 2))
sketch7.addConstraint(Sketcher.Constraint("DistanceY", 3, 2, 1, 2, 0.0403))
sketch7.addConstraint(Sketcher.Constraint("Distance", 0, 35.75128))
sketch7.addConstraint(Sketcher.Constraint("DistanceX", 0, 2, 2, 2, 30.996411))
sketch7.addConstraint(Sketcher.Constraint("DistanceY", 0, 2, 2, 2, 53.606759))
pocket2 = body.newObject("PartDesign::Pocket", "Pocket001")
pocket2.Profile = sketch7
pocket2.Length = 23
pocket2.Reversed = True

sketch8 = body.newObject("Sketcher::SketchObject", "Sketch007")
sketch8.Placement = App.Placement(App.Vector(10.961515, 0, -0.007134), App.Rotation(App.Vector(-0.000650806, 0, -0.999999788), App.Vector(0, 1, 0), App.Vector(0.999999788, 0, -0.000650806), "ZXY"))
sketch8.addGeometry(Part.LineSegment(App.Vector(-16, 0, 0), App.Vector(-16, -20, 0)), False)
sketch8.addGeometry(Part.LineSegment(App.Vector(-16, -20, 0), App.Vector(16, -20, 0)), False)
sketch8.addGeometry(Part.LineSegment(App.Vector(16, -20, 0), App.Vector(16, 0, 0)), False)
sketch8.addGeometry(Part.LineSegment(App.Vector(16, 0, 0), App.Vector(-16, 0, 0)), False)
sketch8.addConstraint(Sketcher.Constraint("Coincident", 0, 2, 1, 1))
sketch8.addConstraint(Sketcher.Constraint("Coincident", 1, 2, 2, 1))
sketch8.addConstraint(Sketcher.Constraint("Coincident", 2, 2, 3, 1))
sketch8.addConstraint(Sketcher.Constraint("Coincident", 3, 2, 0, 1))
sketch8.addConstraint(Sketcher.Constraint("Vertical", 0))
sketch8.addConstraint(Sketcher.Constraint("Horizontal", 1))
sketch8.addConstraint(Sketcher.Constraint("Vertical", 2))
sketch8.addConstraint(Sketcher.Constraint("Horizontal", 3))
sketch8.addConstraint(Sketcher.Constraint("Symmetric", 2, 2, 3, 2, -1, 1))
sketch8.addConstraint(Sketcher.Constraint("DistanceY", 0, 2, 0, 1, 20.0))
sketch8.addConstraint(Sketcher.Constraint("DistanceX", 1, 1, 1, 2, 32.370082))
pocket3 = body.newObject("PartDesign::Pocket", "Pocket002")
pocket3.Profile = sketch8
pocket3.Length = 133.32518
pocket3.Reversed = True
doc.recompute()

polarpattern = body.newObject("PartDesign::PolarPattern", "PolarPattern")
polarpattern.Originals = [pocket3]
polarpattern.Axis = (doc.getObject("Y_Axis"), [""])
polarpattern.Angle = 360
polarpattern.Occurrences = 6
body.Tip = polarpattern

sketch9 = body.newObject("Sketcher::SketchObject", "Sketch008")
sketch9.AttachmentSupport = (doc.getObject("XZ_Plane"), [""])
sketch9.MapMode = "FlatFace"
sketch9.AttachmentOffset = App.Placement(App.Vector(0, 0, 20), App.Rotation())
sketch9.addGeometry(Part.LineSegment(App.Vector(17.7, 25.6, 0), App.Vector(15.5, 26.8, 0)), False)
sketch9.addGeometry(Part.LineSegment(App.Vector(15.5, 26.8, 0), App.Vector(13.3, 28.1, 0)), False)
sketch9.addGeometry(Part.LineSegment(App.Vector(13.3, 28.1, 0), App.Vector(15.3, 31.5, 0)), False)
sketch9.addGeometry(Part.LineSegment(App.Vector(15.3, 31.5, 0), App.Vector(19.7, 29, 0)), False)
sketch9.addGeometry(Part.LineSegment(App.Vector(19.7, 29, 0), App.Vector(17.7, 25.6, 0)), False)
sketch9.addConstraint(Sketcher.Constraint("Coincident", 0, 2, 1, 1))
sketch9.addConstraint(Sketcher.Constraint("Coincident", 1, 2, 2, 1))
sketch9.addConstraint(Sketcher.Constraint("Coincident", 2, 2, 3, 1))
sketch9.addConstraint(Sketcher.Constraint("Coincident", 3, 2, 4, 1))
sketch9.addConstraint(Sketcher.Constraint("Coincident", 4, 2, 0, 1))
sketch9.addConstraint(Sketcher.Constraint("Perpendicular", 1, 2))
sketch9.addConstraint(Sketcher.Constraint("Perpendicular", 0, 4))
sketch9.addConstraint(Sketcher.Constraint("Equal", 0, 1))
sketch9.addConstraint(Sketcher.Constraint("Equal", 2, 4))
sketch9.addConstraint(Sketcher.Constraint("Angle", 3, Q("-30 deg")))
sketch9.addConstraint(Sketcher.Constraint("Distance", 0, 2.5))
sketch9.addConstraint(Sketcher.Constraint("DistanceX", 1, 2, 3, 2, 6.333202))
sketch9.addConstraint(Sketcher.Constraint("Distance", 2, 4.001642))
sketch9.addConstraint(Sketcher.Constraint("DistanceY", -1, 1, 0, 2, 26.803379))
sketch9.addConstraint(Sketcher.Constraint("DistanceX", -1, 1, 1, 2, 13.332329))
pad6 = body.newObject("PartDesign::Pad", "Pad005")
pad6.Profile = sketch9
pad6.Length = 20
pad6.Reversed = True
doc.recompute()

polarpattern2 = body.newObject("PartDesign::PolarPattern", "PolarPattern001")
polarpattern2.Originals = [pad6]
polarpattern2.Axis = (doc.getObject("Y_Axis"), [""])
polarpattern2.Angle = 360
polarpattern2.Occurrences = 6
body.Tip = polarpattern2

doc.recompute()
